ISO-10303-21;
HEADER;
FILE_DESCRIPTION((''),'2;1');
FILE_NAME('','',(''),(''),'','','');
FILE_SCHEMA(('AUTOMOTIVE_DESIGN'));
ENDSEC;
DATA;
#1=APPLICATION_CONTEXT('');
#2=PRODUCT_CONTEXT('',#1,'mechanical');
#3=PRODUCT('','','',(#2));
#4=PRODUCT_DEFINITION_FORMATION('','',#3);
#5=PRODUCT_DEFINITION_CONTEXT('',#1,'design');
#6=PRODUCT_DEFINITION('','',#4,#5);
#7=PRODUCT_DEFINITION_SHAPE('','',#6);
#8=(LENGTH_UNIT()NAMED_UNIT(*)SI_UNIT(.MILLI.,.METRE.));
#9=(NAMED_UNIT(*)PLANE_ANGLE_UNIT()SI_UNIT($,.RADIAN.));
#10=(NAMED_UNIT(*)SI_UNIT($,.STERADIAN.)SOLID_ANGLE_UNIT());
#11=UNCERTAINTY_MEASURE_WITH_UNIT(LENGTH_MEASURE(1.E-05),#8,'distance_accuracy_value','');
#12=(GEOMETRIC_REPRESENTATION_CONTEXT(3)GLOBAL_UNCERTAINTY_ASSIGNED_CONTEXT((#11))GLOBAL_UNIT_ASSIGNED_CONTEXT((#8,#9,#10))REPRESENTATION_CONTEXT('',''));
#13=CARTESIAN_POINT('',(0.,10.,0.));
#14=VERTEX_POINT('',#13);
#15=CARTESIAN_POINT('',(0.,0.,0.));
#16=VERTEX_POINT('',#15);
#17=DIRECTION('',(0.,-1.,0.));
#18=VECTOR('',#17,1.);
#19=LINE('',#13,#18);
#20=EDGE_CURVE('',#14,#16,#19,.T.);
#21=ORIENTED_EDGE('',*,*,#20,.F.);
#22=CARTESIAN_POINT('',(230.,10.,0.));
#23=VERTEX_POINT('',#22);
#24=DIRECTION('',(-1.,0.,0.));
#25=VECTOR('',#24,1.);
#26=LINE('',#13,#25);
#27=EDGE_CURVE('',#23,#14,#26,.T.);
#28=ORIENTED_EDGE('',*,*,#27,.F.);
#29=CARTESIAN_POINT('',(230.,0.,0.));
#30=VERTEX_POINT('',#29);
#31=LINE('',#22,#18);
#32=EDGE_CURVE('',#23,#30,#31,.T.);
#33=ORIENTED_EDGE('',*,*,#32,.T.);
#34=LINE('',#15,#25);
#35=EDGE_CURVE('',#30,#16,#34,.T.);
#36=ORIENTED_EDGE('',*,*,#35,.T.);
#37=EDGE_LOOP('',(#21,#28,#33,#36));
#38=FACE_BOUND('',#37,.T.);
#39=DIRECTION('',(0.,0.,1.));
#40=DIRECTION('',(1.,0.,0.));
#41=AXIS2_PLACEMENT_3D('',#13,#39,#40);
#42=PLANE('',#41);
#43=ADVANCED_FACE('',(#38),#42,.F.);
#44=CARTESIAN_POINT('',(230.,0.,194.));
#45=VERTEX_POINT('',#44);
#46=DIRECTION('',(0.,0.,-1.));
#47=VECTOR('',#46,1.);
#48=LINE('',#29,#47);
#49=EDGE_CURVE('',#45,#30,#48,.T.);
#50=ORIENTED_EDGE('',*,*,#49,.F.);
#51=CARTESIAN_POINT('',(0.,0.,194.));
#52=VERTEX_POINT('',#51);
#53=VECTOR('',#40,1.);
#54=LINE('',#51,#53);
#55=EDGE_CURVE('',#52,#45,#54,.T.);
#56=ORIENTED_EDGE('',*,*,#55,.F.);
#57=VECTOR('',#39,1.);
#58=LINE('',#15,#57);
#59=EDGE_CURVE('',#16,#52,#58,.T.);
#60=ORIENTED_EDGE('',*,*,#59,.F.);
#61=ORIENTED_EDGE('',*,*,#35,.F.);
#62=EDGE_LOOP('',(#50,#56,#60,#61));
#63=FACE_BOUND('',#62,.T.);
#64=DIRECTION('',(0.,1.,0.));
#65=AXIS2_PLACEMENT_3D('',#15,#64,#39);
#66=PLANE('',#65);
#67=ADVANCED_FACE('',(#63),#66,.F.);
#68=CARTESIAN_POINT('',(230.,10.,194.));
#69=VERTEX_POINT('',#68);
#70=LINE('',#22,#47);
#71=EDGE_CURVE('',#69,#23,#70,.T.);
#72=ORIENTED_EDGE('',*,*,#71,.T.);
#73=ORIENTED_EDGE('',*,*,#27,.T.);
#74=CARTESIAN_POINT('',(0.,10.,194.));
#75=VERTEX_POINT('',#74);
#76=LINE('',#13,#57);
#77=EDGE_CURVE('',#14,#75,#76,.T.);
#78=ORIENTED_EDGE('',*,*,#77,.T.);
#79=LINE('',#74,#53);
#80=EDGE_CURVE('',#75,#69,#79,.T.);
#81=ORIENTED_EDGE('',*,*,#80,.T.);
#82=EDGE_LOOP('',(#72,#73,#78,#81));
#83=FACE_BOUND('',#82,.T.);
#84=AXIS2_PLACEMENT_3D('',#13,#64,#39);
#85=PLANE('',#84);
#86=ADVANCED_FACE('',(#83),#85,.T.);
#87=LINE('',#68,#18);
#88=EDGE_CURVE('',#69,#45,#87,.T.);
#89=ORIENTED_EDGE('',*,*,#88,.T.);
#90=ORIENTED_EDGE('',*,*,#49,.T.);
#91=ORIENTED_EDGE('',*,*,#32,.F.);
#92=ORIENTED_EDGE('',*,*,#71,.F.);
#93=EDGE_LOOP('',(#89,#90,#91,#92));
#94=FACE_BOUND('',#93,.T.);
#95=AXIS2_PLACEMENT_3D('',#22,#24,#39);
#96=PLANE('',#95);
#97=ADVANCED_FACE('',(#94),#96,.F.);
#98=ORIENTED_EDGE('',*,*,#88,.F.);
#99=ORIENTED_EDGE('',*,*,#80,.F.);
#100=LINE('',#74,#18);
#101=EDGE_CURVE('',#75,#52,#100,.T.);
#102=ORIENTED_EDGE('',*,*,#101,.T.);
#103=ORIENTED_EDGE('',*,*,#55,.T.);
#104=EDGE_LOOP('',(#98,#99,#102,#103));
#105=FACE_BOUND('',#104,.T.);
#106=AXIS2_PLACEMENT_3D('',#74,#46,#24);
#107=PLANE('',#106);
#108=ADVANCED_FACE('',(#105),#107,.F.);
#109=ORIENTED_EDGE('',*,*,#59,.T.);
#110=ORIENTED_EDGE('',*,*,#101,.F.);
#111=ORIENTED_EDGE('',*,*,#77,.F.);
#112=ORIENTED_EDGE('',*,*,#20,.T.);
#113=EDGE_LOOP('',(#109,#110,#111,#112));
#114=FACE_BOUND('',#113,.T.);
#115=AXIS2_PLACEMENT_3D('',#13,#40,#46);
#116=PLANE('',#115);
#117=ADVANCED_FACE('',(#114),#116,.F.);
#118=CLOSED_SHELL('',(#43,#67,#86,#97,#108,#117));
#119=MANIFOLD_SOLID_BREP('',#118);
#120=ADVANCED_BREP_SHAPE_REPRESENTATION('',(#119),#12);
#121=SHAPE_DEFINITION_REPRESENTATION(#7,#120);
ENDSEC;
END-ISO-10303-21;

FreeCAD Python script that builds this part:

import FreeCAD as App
import Part
import Sketcher
Q = App.Units.Quantity


def add_polygon(sketch, points):
    """Adds a closed chain of lines whose ends are joined by coincident constraints."""
    first, n = sketch.GeometryCount, len(points)
    for a, b in zip(points, points[1:] + points[:1]):
        sketch.addGeometry(Part.LineSegment(App.Vector(*a, 0), App.Vector(*b, 0)), False)
    for i in range(n):
        sketch.addConstraint(Sketcher.Constraint("Coincident", first + i, 2, first + (i + 1) % n, 1))

doc = App.newDocument("Part")
body = doc.addObject("PartDesign::Body", "Body")

# Sketch on XZ plane
sketch1 = body.newObject("Sketcher::SketchObject", "Sketch")
sketch1.AttachmentSupport = (doc.getObject("XZ_Plane"), [""])
sketch1.MapMode = "FlatFace"
add_polygon(sketch1, [(0, 0), (0, 194), (230, 194), (230, 0)])  # lines 0-3
sketch1.addConstraint([
    Sketcher.Constraint("Vertical", 0),
    Sketcher.Constraint("Horizontal", 1),
    Sketcher.Constraint("Vertical", 2),
    Sketcher.Constraint("Horizontal", 3),
    Sketcher.Constraint("Coincident", 3, 2, -1, 1),
    Sketcher.Constraint("DistanceX", 1, 1, 1, 2, Q("230 mm")),
    Sketcher.Constraint("DistanceY", 0, 1, 0, 2, Q("194 mm")),
])
pad1 = body.newObject("PartDesign::Pad", "Pad")
pad1.Profile = sketch1
pad1.Length = 10
pad1.Reversed = True

doc.recompute()
